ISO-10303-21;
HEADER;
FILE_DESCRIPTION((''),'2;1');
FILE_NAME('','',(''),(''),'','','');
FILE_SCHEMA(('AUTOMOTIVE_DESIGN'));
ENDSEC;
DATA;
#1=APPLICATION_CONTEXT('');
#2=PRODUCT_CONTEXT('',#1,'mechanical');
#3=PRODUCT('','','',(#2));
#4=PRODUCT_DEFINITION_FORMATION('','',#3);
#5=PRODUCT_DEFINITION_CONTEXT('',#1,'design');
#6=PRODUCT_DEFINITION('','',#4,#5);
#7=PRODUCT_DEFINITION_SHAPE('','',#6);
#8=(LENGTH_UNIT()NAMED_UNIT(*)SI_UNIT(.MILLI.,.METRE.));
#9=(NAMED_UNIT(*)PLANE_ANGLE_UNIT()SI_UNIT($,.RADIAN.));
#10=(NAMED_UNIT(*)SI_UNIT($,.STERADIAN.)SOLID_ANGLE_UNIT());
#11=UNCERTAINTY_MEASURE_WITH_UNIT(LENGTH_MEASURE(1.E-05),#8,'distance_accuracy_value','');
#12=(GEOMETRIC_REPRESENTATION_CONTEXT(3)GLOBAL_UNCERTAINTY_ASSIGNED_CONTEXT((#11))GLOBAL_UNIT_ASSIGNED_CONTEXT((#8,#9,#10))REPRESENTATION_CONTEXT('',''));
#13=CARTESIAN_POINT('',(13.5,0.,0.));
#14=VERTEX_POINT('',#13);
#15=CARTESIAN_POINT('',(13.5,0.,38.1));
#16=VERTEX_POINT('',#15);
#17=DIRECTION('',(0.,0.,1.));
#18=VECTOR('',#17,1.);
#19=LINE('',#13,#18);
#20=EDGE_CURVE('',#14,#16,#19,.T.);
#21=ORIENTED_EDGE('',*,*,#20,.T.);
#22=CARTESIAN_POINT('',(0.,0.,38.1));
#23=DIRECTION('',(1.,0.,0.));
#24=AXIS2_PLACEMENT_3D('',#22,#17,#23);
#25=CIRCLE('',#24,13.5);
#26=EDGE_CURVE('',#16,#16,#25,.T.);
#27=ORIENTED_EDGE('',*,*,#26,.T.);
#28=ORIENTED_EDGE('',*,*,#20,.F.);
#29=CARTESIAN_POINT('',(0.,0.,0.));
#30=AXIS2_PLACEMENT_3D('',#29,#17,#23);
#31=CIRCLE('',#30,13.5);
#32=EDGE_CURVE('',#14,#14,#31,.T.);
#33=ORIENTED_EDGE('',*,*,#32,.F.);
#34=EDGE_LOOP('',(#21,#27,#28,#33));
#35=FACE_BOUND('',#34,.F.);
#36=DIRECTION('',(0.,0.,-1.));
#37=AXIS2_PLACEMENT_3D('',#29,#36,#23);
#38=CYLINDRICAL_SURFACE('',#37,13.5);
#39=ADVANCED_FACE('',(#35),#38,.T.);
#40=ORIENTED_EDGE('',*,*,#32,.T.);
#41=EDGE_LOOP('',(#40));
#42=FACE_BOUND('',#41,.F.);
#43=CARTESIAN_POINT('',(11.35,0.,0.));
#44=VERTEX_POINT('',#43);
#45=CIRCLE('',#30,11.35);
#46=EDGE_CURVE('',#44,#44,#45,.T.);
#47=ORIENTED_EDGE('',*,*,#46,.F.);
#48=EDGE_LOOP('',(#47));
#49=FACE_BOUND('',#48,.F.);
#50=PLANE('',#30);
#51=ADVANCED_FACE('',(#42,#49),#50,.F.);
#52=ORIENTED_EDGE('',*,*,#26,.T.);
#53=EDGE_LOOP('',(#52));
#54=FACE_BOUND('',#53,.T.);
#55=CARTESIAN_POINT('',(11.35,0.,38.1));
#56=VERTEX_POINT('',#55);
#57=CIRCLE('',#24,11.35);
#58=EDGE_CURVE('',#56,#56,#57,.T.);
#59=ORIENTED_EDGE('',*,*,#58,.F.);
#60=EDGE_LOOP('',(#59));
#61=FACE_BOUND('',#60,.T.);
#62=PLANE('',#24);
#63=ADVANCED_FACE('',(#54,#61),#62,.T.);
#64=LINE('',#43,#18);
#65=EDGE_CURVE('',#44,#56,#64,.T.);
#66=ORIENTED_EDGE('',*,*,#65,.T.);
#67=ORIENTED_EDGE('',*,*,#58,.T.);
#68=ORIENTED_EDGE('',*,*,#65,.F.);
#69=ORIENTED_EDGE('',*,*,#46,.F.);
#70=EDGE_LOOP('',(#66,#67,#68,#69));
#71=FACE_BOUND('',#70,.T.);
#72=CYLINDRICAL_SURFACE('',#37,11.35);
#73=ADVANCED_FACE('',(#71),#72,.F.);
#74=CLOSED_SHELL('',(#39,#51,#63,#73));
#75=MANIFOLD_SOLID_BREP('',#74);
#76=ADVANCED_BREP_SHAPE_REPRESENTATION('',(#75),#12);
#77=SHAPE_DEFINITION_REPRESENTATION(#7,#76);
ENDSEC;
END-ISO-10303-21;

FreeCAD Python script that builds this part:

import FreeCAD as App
import Part
import Sketcher
from FreeCAD import Vector

doc = App.newDocument("Part")
body = doc.addObject("PartDesign::Body", "Body")

# Sketch on XY plane
sketch1 = body.newObject("Sketcher::SketchObject", "Sketch")
sketch1.AttachmentSupport = (doc.getObject("XY_Plane"), [""])
sketch1.MapMode = "FlatFace"
sketch1.addGeometry(Part.Circle(Vector(0, 0, 0), Vector(0, 0, 1), 14), False)
sketch1.addGeometry(Part.Circle(Vector(0, 0, 0), Vector(0, 0, 1), 11), False)
sketch1.addConstraint(Sketcher.Constraint("Coincident", 0, 3, -1, 1))
sketch1.addConstraint(Sketcher.Constraint("Coincident", 1, 3, -1, 1))
sketch1.addConstraint(Sketcher.Constraint("Diameter", 0, 27.0))
sketch1.addConstraint(Sketcher.Constraint("Diameter", 1, 22.7))
pad1 = body.newObject("PartDesign::Pad", "Pad")
pad1.Profile = sketch1
pad1.Length = 38.1

doc.recompute()
